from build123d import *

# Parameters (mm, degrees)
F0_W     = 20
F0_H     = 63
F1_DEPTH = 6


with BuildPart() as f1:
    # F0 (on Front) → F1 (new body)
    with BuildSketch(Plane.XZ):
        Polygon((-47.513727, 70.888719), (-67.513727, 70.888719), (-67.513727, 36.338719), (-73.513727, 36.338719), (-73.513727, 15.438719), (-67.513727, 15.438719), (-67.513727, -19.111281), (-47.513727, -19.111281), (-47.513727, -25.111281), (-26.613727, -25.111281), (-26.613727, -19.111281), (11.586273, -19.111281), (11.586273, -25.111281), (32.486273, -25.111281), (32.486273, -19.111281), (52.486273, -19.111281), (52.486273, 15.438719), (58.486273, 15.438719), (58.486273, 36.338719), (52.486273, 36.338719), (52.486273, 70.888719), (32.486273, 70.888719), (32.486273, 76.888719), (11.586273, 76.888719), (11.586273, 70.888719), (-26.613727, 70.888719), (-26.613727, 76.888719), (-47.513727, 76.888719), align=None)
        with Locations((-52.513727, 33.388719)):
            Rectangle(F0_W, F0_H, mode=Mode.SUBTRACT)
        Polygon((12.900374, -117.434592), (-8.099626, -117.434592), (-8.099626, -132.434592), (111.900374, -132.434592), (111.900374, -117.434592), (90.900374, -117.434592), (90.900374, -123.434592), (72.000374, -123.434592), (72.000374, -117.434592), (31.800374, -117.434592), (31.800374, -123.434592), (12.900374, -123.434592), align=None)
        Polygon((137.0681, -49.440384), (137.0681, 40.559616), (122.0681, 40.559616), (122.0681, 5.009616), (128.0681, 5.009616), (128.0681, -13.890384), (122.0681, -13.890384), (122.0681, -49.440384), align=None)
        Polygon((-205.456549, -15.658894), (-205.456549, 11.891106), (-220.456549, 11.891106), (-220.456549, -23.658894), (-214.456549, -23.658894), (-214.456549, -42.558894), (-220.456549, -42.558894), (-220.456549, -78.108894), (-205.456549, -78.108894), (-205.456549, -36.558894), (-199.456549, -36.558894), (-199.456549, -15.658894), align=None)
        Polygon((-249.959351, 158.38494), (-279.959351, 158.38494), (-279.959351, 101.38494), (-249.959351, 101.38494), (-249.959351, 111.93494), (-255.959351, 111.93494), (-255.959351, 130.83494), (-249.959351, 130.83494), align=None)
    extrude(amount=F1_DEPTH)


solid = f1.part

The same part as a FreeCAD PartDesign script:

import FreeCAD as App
import Part
import Sketcher
Q = App.Units.Quantity


def add_polygon(sketch, points):
    """Adds a closed chain of lines whose ends are joined by coincident constraints."""
    first, n = sketch.GeometryCount, len(points)
    for a, b in zip(points, points[1:] + points[:1]):
        sketch.addGeometry(Part.LineSegment(App.Vector(*a, 0), App.Vector(*b, 0)), False)
    for i in range(n):
        sketch.addConstraint(Sketcher.Constraint("Coincident", first + i, 2, first + (i + 1) % n, 1))

doc = App.newDocument("Part")
params = doc.addObject("Spreadsheet::Sheet", "Params")
for row, (alias, value) in enumerate([
    ("sketch1_width", "20 mm"),
    ("sketch1_width2", "6 mm"),
    ("sketch1_width3", "21 mm"),
    ("sketch1_width4", "120 mm"),
    ("sketch1_width5", "15 mm"),
    ("pad1_length", "6 mm"),
], start=1):
    params.set(f"A{row}", alias)
    params.set(f"B{row}", "=" + value)
    params.setAlias(f"B{row}", alias)

body = doc.addObject("PartDesign::Body", "Body")
body.AllowCompound = True

# Sketch on XZ plane
sketch1 = body.newObject("Sketcher::SketchObject", "Sketch")
sketch1.AttachmentSupport = (doc.getObject("XZ_Plane"), [""])
sketch1.MapMode = "FlatFace"
add_polygon(sketch1, [(-48, 71), (-68, 71), (-68, 36), (-74, 36), (-74, 15), (-68, 15), (-68, -19), (-48, -19), (-48, -25), (-27, -25), (-27, -19), (12, -19), (12, -25), (32, -25), (32, -19), (52, -19), (52, 15), (58, 15), (58, 36), (52, 36), (52, 71), (32, 71), (32, 77), (12, 77), (12, 71), (-27, 71), (-27, 77), (-48, 77)])  # lines 0-27
add_polygon(sketch1, [(-43, 2), (-63, 2), (-63, 65), (-43, 65)])  # lines 28-31
add_polygon(sketch1, [(13, -117), (-8, -117), (-8, -132), (112, -132), (112, -117), (91, -117), (91, -123), (72, -123), (72, -117), (32, -117), (32, -123), (13, -123)])  # lines 32-43
add_polygon(sketch1, [(137, -49), (137, 41), (122, 41), (122, 5), (128, 5), (128, -14), (122, -14), (122, -49)])  # lines 44-51
add_polygon(sketch1, [(-205, -16), (-205, 12), (-220, 12), (-220, -24), (-214, -24), (-214, -43), (-220, -43), (-220, -78), (-205, -78), (-205, -37), (-199, -37), (-199, -16)])  # lines 52-63
add_polygon(sketch1, [(-250, 158), (-280, 158), (-280, 101), (-250, 101), (-250, 112), (-256, 112), (-256, 131), (-250, 131)])  # lines 64-71
sketch1.addConstraint([
    Sketcher.Constraint("Horizontal", 0),
    Sketcher.Constraint("Vertical", 1),
    Sketcher.Constraint("Horizontal", 2),
    Sketcher.Constraint("Vertical", 3),
    Sketcher.Constraint("Horizontal", 4),
    Sketcher.Constraint("Vertical", 5),
    Sketcher.Constraint("Horizontal", 6),
    Sketcher.Constraint("Vertical", 7),
    Sketcher.Constraint("Horizontal", 8),
    Sketcher.Constraint("Vertical", 9),
    Sketcher.Constraint("Horizontal", 10),
    Sketcher.Constraint("Vertical", 11),
    Sketcher.Constraint("Horizontal", 12),
    Sketcher.Constraint("Vertical", 13),
    Sketcher.Constraint("Horizontal", 14),
    Sketcher.Constraint("Vertical", 15),
    Sketcher.Constraint("Horizontal", 16),
    Sketcher.Constraint("Vertical", 17),
    Sketcher.Constraint("Horizontal", 18),
    Sketcher.Constraint("Vertical", 19),
    Sketcher.Constraint("Horizontal", 20),
    Sketcher.Constraint("Vertical", 21),
    Sketcher.Constraint("Horizontal", 22),
    Sketcher.Constraint("Vertical", 23),
    Sketcher.Constraint("Horizontal", 24),
    Sketcher.Constraint("Vertical", 25),
    Sketcher.Constraint("Horizontal", 26),
    Sketcher.Constraint("Vertical", 27),
    Sketcher.Constraint("Horizontal", 28),
    Sketcher.Constraint("Vertical", 29),
    Sketcher.Constraint("Horizontal", 30),
    Sketcher.Constraint("Vertical", 31),
    Sketcher.Constraint("Horizontal", 32),
    Sketcher.Constraint("Vertical", 33),
    Sketcher.Constraint("Horizontal", 34),
    Sketcher.Constraint("Vertical", 35),
    Sketcher.Constraint("Horizontal", 36),
    Sketcher.Constraint("Vertical", 37),
    Sketcher.Constraint("Horizontal", 38),
    Sketcher.Constraint("Vertical", 39),
    Sketcher.Constraint("Horizontal", 40),
    Sketcher.Constraint("Vertical", 41),
    Sketcher.Constraint("Horizontal", 42),
    Sketcher.Constraint("Vertical", 43),
    Sketcher.Constraint("Vertical", 44),
    Sketcher.Constraint("Horizontal", 45),
    Sketcher.Constraint("Vertical", 46),
    Sketcher.Constraint("Horizontal", 47),
    Sketcher.Constraint("Vertical", 48),
    Sketcher.Constraint("Horizontal", 49),
    Sketcher.Constraint("Vertical", 50),
    Sketcher.Constraint("Horizontal", 51),
    Sketcher.Constraint("Vertical", 52),
    Sketcher.Constraint("Horizontal", 53),
    Sketcher.Constraint("Vertical", 54),
    Sketcher.Constraint("Horizontal", 55),
    Sketcher.Constraint("Vertical", 56),
    Sketcher.Constraint("Horizontal", 57),
    Sketcher.Constraint("Vertical", 58),
    Sketcher.Constraint("Horizontal", 59),
    Sketcher.Constraint("Vertical", 60),
    Sketcher.Constraint("Horizontal", 61),
    Sketcher.Constraint("Vertical", 62),
    Sketcher.Constraint("Horizontal", 63),
    Sketcher.Constraint("Horizontal", 64),
    Sketcher.Constraint("Vertical", 65),
    Sketcher.Constraint("Horizontal", 66),
    Sketcher.Constraint("Vertical", 67),
    Sketcher.Constraint("Horizontal", 68),
    Sketcher.Constraint("Vertical", 69),
    Sketcher.Constraint("Horizontal", 70),
    Sketcher.Constraint("Vertical", 71),
    Sketcher.Constraint("Horizontal", 6, 2, 9, 2),
    Sketcher.Constraint("Horizontal", 8, 2, 11, 2),
    Sketcher.Constraint("Horizontal", 10, 2, 13, 2),
    Sketcher.Constraint("Horizontal", 4, 2, 15, 2),
    Sketcher.Constraint("Horizontal", 2, 2, 17, 2),
    Sketcher.Constraint("Horizontal", 0, 2, 19, 2),
    Sketcher.Constraint("Horizontal", 20, 2, 23, 2),
    Sketcher.Constraint("Horizontal", 22, 2, 25, 2),
    Sketcher.Constraint("Horizontal", 32, 2, 35, 2),
    Sketcher.Constraint("Horizontal", 36, 2, 39, 2),
    Sketcher.Constraint("Horizontal", 38, 2, 41, 2),
    Sketcher.Constraint("Vertical", 1, 2, 4, 2),
    Sketcher.Constraint("Vertical", 15, 2, 18, 2),
    Sketcher.Constraint("Vertical", 13, 2, 20, 2),
    Sketcher.Constraint("Vertical", 11, 2, 22, 2),
    Sketcher.Constraint("Vertical", 9, 2, 24, 2),
    Sketcher.Constraint("Vertical", 7, 2, 26, 2),
    Sketcher.Constraint("Vertical", 46, 2, 49, 2),
    Sketcher.Constraint("Vertical", 54, 2, 57, 2),
    Sketcher.Constraint("Vertical", 52, 2, 59, 2),
    Sketcher.Constraint("Vertical", 67, 2, 70, 2),
    Sketcher.Constraint("Equal", 8, 12),
    Sketcher.Constraint("Equal", 6, 14),
    Sketcher.Constraint("Equal", 4, 16),
    Sketcher.Constraint("Equal", 20, 28),
    Sketcher.Constraint("Equal", 32, 36),
    Sketcher.Constraint("Equal", 38, 42),
    Sketcher.Constraint("Equal", 18, 47),
    Sketcher.Constraint("Equal", 51, 53),
    Sketcher.Constraint("Equal", 49, 55),
    Sketcher.Constraint("Equal", 57, 61),
    Sketcher.Constraint("Equal", 63, 68),
    Sketcher.Constraint("Equal", 26, 3),
    Sketcher.Constraint("Equal", 1, 5),
    Sketcher.Constraint("Equal", 70, 7),
    Sketcher.Constraint("Equal", 13, 21),
    Sketcher.Constraint("Equal", 59, 33),
    Sketcher.Constraint("Equal", 27, 37),
    Sketcher.Constraint("Equal", 42, 48),
    Sketcher.Constraint("Equal", 46, 50),
    Sketcher.Constraint("Equal", 50, 54),
    Sketcher.Constraint("Equal", 48, 56),
    Sketcher.Constraint("Equal", 54, 58),
    Sketcher.Constraint("Equal", 17, 62),
    Sketcher.Constraint("Equal", 56, 69),
    Sketcher.Constraint("Equal", 52, 71),
    Sketcher.Constraint("DistanceX", 0, 2, 0, 1, Q("20 mm")),
    Sketcher.Constraint("DistanceX", 2, 2, 2, 1, Q("6 mm")),
    Sketcher.Constraint("DistanceX", 32, 2, 32, 1, Q("21 mm")),
    Sketcher.Constraint("DistanceX", 34, 1, 34, 2, Q("120 mm")),
    Sketcher.Constraint("DistanceX", 45, 2, 45, 1, Q("15 mm")),
    Sketcher.Constraint("DistanceX", 64, 2, 64, 1, Q("30 mm")),
    Sketcher.Constraint("DistanceY", 29, 1, 29, 2, Q("63 mm")),
    Sketcher.Constraint("DistanceY", 44, 1, 44, 2, Q("90 mm")),
    Sketcher.Constraint("DistanceY", 65, 2, 65, 1, Q("57 mm")),
    Sketcher.Constraint("DistanceX", 8, 1, 8, 2, Q("20.9 mm")),
    Sketcher.Constraint("DistanceX", 10, 1, 10, 2, Q("38.2 mm")),
    Sketcher.Constraint("DistanceX", 38, 2, 38, 1, Q("18.9 mm")),
    Sketcher.Constraint("DistanceY", 1, 2, 1, 1, Q("34.55 mm")),
    Sketcher.Constraint("DistanceY", 52, 1, 52, 2, Q("27.55 mm")),
    Sketcher.Constraint("DistanceX", -1, 1, 44, 2, Q("137.0681 mm")),
    Sketcher.Constraint("DistanceY", -1, 1, 0, 2, Q("70.888719 mm")),
    Sketcher.Constraint("DistanceY", -1, 1, 28, 2, Q("1.888719 mm")),
    Sketcher.Constraint("DistanceY", 32, 2, -1, 1, Q("117.434592 mm")),
    Sketcher.Constraint("DistanceX", 52, 2, -1, 1, Q("205.456549 mm")),
    Sketcher.Constraint("DistanceX", 64, 2, -1, 1, Q("279.959351 mm")),
    Sketcher.Constraint("DistanceY", -1, 1, 64, 2, Q("158.38494 mm")),
    Sketcher.Constraint("DistanceX", 0, 2, -1, 1, Q("67.513727 mm")),
    Sketcher.Constraint("DistanceX", 28, 2, -1, 1, Q("62.513727 mm")),
    Sketcher.Constraint("DistanceX", 32, 2, -1, 1, Q("8.099626 mm")),
    Sketcher.Constraint("DistanceY", -1, 1, 44, 2, Q("40.559616 mm")),
    Sketcher.Constraint("DistanceY", -1, 1, 52, 2, Q("11.891106 mm")),
])
sketch1.setExpression("Constraints[190]", "Params.sketch1_width")
sketch1.setExpression("Constraints[191]", "Params.sketch1_width2")
sketch1.setExpression("Constraints[192]", "Params.sketch1_width3")
sketch1.setExpression("Constraints[193]", "Params.sketch1_width4")
sketch1.setExpression("Constraints[194]", "Params.sketch1_width5")
pad1 = body.newObject("PartDesign::Pad", "Pad")
pad1.Profile = sketch1
pad1.setExpression("Length", "Params.pad1_length")

doc.recompute()
